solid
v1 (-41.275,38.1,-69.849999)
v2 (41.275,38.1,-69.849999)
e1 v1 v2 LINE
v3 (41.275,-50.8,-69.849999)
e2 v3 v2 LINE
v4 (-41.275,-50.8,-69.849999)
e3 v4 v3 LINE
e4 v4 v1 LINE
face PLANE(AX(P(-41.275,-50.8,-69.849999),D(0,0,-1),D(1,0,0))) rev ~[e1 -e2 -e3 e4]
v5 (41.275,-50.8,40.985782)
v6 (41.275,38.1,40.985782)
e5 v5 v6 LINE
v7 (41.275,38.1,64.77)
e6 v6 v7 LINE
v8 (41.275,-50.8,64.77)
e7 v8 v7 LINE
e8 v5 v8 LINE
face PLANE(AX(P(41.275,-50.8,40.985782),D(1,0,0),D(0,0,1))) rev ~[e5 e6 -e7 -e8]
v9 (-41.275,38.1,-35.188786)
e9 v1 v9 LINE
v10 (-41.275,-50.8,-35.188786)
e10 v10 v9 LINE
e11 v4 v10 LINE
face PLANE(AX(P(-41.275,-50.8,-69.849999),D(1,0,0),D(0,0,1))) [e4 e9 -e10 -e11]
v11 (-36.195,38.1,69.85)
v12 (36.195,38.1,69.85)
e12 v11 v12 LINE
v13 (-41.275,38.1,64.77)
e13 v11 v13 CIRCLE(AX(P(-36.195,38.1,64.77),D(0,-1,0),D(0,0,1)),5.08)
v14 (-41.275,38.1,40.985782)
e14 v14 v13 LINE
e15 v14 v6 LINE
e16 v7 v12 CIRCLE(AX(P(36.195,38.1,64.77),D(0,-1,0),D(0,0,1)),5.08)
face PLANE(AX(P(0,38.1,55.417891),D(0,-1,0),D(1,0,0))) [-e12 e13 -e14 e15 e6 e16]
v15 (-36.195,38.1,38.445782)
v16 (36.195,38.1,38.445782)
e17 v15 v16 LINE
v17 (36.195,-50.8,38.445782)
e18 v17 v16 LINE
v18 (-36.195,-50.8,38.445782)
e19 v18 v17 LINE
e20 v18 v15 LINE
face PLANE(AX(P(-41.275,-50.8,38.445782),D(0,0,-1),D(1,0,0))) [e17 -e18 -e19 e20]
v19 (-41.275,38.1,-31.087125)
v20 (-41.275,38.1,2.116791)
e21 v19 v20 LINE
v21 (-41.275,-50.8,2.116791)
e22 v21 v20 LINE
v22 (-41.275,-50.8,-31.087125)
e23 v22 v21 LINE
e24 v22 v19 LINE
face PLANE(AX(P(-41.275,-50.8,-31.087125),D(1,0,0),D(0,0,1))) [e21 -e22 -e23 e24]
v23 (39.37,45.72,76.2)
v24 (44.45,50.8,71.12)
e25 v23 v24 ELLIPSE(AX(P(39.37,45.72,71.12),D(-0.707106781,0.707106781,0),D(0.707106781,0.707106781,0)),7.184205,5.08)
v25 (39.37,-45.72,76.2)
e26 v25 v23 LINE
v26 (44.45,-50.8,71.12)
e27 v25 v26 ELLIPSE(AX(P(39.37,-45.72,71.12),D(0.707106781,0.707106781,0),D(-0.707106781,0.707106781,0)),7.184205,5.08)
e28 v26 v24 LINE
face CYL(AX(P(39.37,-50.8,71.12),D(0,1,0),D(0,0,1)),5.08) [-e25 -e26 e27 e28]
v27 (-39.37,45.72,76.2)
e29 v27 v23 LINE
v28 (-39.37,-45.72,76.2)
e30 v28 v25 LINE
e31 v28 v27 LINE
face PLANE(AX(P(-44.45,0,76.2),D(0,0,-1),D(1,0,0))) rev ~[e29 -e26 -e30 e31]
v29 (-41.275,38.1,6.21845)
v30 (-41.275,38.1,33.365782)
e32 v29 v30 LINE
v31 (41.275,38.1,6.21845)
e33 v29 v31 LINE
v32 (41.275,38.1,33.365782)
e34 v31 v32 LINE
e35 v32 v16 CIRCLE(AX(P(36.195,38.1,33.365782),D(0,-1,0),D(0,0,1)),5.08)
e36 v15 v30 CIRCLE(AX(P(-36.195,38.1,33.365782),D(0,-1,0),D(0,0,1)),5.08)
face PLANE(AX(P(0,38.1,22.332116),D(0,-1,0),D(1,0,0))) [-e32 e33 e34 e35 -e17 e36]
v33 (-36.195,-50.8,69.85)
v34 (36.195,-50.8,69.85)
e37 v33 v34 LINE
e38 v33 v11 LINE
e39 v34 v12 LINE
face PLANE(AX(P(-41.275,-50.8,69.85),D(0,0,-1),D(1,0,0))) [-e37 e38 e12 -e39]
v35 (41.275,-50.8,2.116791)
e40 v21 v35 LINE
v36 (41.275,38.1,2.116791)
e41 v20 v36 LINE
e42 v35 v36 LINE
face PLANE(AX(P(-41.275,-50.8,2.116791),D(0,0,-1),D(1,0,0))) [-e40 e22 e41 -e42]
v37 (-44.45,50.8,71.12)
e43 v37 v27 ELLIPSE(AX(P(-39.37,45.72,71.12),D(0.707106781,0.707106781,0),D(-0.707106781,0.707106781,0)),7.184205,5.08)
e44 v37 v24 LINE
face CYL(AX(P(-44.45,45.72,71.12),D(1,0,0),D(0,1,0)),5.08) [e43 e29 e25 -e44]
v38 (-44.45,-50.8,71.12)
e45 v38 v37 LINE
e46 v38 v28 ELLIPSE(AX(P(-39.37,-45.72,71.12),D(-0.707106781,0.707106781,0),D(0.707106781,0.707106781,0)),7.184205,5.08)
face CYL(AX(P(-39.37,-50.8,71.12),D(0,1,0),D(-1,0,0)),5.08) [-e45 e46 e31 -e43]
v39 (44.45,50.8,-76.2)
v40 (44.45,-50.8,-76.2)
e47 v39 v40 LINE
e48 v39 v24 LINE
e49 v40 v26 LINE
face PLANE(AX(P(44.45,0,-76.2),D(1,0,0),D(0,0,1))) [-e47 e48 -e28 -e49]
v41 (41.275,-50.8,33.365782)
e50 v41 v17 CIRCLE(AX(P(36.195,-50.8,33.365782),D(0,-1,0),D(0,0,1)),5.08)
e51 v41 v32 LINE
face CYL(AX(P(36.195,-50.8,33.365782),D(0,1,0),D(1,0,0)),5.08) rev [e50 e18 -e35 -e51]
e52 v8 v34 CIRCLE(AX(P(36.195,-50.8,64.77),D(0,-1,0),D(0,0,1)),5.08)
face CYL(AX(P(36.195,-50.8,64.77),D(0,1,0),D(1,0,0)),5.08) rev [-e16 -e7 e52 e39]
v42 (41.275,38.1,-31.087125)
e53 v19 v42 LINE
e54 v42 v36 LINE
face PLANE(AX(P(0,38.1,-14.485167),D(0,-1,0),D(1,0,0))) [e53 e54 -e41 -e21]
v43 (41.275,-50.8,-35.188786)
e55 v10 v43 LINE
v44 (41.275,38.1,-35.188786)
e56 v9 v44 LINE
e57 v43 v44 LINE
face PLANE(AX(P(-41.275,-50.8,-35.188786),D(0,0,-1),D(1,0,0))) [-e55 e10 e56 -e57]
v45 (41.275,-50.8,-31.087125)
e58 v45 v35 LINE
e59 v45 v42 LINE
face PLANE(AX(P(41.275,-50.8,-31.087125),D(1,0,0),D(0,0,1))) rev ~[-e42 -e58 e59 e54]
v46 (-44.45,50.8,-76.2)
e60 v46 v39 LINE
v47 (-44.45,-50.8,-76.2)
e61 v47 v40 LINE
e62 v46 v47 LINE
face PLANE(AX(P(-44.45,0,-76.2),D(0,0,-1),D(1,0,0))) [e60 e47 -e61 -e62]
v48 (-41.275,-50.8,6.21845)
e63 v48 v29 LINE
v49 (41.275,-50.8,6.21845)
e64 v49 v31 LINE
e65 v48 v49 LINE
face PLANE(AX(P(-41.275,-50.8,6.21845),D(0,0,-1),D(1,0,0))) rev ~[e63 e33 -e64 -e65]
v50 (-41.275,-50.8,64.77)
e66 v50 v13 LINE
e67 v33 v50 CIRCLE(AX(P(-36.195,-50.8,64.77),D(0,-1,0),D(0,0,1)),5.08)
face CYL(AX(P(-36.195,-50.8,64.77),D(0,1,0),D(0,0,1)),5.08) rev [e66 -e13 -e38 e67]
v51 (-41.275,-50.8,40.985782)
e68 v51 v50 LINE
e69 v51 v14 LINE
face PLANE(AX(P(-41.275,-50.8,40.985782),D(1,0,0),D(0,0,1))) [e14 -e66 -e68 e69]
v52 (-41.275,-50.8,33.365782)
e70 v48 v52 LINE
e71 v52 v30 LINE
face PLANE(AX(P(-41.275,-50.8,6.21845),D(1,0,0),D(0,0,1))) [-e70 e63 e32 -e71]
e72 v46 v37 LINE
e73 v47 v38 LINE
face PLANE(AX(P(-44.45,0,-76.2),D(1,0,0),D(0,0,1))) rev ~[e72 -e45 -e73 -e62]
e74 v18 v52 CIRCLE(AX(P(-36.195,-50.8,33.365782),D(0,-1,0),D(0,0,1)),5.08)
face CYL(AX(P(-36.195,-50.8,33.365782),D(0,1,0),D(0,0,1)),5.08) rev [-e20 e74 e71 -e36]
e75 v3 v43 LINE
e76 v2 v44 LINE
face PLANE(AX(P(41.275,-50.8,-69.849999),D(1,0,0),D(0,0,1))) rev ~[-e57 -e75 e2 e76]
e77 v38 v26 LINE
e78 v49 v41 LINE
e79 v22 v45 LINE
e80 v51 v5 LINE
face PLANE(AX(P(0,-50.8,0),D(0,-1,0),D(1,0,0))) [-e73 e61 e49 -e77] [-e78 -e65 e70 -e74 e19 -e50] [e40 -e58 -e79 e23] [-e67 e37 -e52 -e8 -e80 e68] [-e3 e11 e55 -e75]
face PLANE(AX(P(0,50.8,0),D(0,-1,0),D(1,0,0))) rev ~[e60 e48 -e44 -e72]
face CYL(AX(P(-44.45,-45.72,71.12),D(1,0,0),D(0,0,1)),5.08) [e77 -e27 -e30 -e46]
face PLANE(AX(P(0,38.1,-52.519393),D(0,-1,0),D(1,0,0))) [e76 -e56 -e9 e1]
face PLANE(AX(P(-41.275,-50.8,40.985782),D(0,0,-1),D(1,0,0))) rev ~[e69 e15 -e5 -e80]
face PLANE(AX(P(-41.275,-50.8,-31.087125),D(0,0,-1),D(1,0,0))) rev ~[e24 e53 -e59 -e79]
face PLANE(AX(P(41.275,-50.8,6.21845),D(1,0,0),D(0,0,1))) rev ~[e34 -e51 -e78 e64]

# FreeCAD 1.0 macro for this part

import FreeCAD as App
import Part
import Sketcher
Q = App.Units.Quantity


def edges_at(feature, points):
    """Names of the edges that pass closest to the given points."""
    edges = feature.Shape.Edges
    near = lambda p: min(range(len(edges)), key=lambda i: edges[i].distToShape(Part.Vertex(*p))[0])
    return sorted({f"Edge{near(p) + 1}" for p in points})


def add_polygon(sketch, points):
    """Adds a closed chain of lines whose ends are joined by coincident constraints."""
    first, n = sketch.GeometryCount, len(points)
    for a, b in zip(points, points[1:] + points[:1]):
        sketch.addGeometry(Part.LineSegment(App.Vector(*a, 0), App.Vector(*b, 0)), False)
    for i in range(n):
        sketch.addConstraint(Sketcher.Constraint("Coincident", first + i, 2, first + (i + 1) % n, 1))

doc = App.newDocument("Part")
body = doc.addObject("PartDesign::Body", "Body")

# Sketch on XZ plane
sketch1 = body.newObject("Sketcher::SketchObject", "Sketch")
sketch1.AttachmentSupport = (doc.getObject("XZ_Plane"), [""])
sketch1.MapMode = "FlatFace"
add_polygon(sketch1, [(-44, 76), (-44, -76), (44, -76), (44, 76)])  # lines 0-3
sketch1.addConstraint(Sketcher.Constraint("Vertical", 0))
sketch1.addConstraint(Sketcher.Constraint("Horizontal", 1))
sketch1.addConstraint(Sketcher.Constraint("Vertical", 2))
sketch1.addConstraint(Sketcher.Constraint("Horizontal", 3))
sketch1.addConstraint(Sketcher.Constraint("Symmetric", 0, 2, 2, 2, -1, 1))
sketch1.addConstraint(Sketcher.Constraint("DistanceY", 0, 2, 0, 1, Q("6 in")))
sketch1.addConstraint(Sketcher.Constraint("DistanceX", 1, 1, 1, 2, Q("3.5 in")))
pad1 = body.newObject("PartDesign::Pad", "Pad")
pad1.Profile = sketch1
pad1.Length = Q("4 in")
pad1.Midplane = True

# Sketch on XZ plane
sketch2 = body.newObject("Sketcher::SketchObject", "Sketch001")
sketch2.AttachmentSupport = (doc.getObject("XZ_Plane"), [""])
sketch2.MapMode = "FlatFace"
sketch2.AttachmentOffset = App.Placement(App.Vector(0, 0, 2 * 25.4), App.Rotation())
add_polygon(sketch2, [(-41, 70), (-41, 41), (41, 41), (41, 70)])  # lines 0-3
add_polygon(sketch2, [(-41, 38), (-41, 6), (41, 6), (41, 38)])  # lines 4-7
add_polygon(sketch2, [(-41, 2), (-41, -31), (41, -31), (41, 2)])  # lines 8-11
add_polygon(sketch2, [(-41, -35), (-41, -70), (41, -70), (41, -35)])  # lines 12-15
sketch2.addConstraint(Sketcher.Constraint("Vertical", 0))
sketch2.addConstraint(Sketcher.Constraint("Horizontal", 1))
sketch2.addConstraint(Sketcher.Constraint("Vertical", 2))
sketch2.addConstraint(Sketcher.Constraint("Horizontal", 3))
sketch2.addConstraint(Sketcher.Constraint("Vertical", 4))
sketch2.addConstraint(Sketcher.Constraint("Horizontal", 5))
sketch2.addConstraint(Sketcher.Constraint("Vertical", 6))
sketch2.addConstraint(Sketcher.Constraint("Horizontal", 7))
sketch2.addConstraint(Sketcher.Constraint("Vertical", 8))
sketch2.addConstraint(Sketcher.Constraint("Horizontal", 9))
sketch2.addConstraint(Sketcher.Constraint("Vertical", 10))
sketch2.addConstraint(Sketcher.Constraint("Horizontal", 11))
sketch2.addConstraint(Sketcher.Constraint("Vertical", 12))
sketch2.addConstraint(Sketcher.Constraint("Horizontal", 13))
sketch2.addConstraint(Sketcher.Constraint("Vertical", 14))
sketch2.addConstraint(Sketcher.Constraint("Horizontal", 15))
sketch2.addConstraint(Sketcher.Constraint("Symmetric", 2, 2, 12, 2, -1, 1))
sketch2.addConstraint(Sketcher.Constraint("Vertical", 3, 2, 4, 2))
sketch2.addConstraint(Sketcher.Constraint("Vertical", 2, 2, 5, 2))
sketch2.addConstraint(Sketcher.Constraint("Vertical", 7, 2, 8, 2))
sketch2.addConstraint(Sketcher.Constraint("Vertical", 6, 2, 9, 2))
sketch2.addConstraint(Sketcher.Constraint("Vertical", 11, 2, 12, 2))
sketch2.addConstraint(Sketcher.Constraint("Vertical", 10, 2, 13, 2))
sketch2.addConstraint(Sketcher.Constraint("DistanceX", 1, 1, 1, 2, Q("3.25 in")))
sketch2.addConstraint(Sketcher.Constraint("DistanceY", 6, 2, 1, 2, Q("0.1 in")))
sketch2.addConstraint(Sketcher.Constraint("DistanceY", -1, 1, 2, 2, Q("2.75 in")))
sketch2.addConstraint(Sketcher.Constraint("DistanceY", 0, 2, 0, 1, 28.864218))
sketch2.addConstraint(Sketcher.Constraint("DistanceY", 4, 2, 4, 1, 32.227332))
sketch2.addConstraint(Sketcher.Constraint("DistanceY", 8, 2, 8, 1, 33.203915))
sketch2.addConstraint(Sketcher.Constraint("DistanceY", 12, 2, 12, 1, 34.661213))
sketch2.addConstraint(Sketcher.Constraint("DistanceY", -1, 1, 10, 2, 2.116791))
pocket1 = body.newObject("PartDesign::Pocket", "Pocket")
pocket1.Profile = sketch2
pocket1.Length = Q("3.5 in")
doc.recompute()

fillet = body.newObject("PartDesign::Fillet", "Fillet")
fillet.Base = (pocket1, edges_at(pocket1, [
    (-44.45, 0, 76.2),
    (44.45, 0, 76.2),
    (0, 50.8, 76.2),
    (0, -50.8, 76.2),
    (-41.275, -6.35, 38.446),
    (41.275, -6.35, 38.446),
    (41.275, -6.35, 69.85),
    (-41.275, -6.35, 69.85),
]))
fillet.Radius = Q("0.2 in")

doc.recompute()
